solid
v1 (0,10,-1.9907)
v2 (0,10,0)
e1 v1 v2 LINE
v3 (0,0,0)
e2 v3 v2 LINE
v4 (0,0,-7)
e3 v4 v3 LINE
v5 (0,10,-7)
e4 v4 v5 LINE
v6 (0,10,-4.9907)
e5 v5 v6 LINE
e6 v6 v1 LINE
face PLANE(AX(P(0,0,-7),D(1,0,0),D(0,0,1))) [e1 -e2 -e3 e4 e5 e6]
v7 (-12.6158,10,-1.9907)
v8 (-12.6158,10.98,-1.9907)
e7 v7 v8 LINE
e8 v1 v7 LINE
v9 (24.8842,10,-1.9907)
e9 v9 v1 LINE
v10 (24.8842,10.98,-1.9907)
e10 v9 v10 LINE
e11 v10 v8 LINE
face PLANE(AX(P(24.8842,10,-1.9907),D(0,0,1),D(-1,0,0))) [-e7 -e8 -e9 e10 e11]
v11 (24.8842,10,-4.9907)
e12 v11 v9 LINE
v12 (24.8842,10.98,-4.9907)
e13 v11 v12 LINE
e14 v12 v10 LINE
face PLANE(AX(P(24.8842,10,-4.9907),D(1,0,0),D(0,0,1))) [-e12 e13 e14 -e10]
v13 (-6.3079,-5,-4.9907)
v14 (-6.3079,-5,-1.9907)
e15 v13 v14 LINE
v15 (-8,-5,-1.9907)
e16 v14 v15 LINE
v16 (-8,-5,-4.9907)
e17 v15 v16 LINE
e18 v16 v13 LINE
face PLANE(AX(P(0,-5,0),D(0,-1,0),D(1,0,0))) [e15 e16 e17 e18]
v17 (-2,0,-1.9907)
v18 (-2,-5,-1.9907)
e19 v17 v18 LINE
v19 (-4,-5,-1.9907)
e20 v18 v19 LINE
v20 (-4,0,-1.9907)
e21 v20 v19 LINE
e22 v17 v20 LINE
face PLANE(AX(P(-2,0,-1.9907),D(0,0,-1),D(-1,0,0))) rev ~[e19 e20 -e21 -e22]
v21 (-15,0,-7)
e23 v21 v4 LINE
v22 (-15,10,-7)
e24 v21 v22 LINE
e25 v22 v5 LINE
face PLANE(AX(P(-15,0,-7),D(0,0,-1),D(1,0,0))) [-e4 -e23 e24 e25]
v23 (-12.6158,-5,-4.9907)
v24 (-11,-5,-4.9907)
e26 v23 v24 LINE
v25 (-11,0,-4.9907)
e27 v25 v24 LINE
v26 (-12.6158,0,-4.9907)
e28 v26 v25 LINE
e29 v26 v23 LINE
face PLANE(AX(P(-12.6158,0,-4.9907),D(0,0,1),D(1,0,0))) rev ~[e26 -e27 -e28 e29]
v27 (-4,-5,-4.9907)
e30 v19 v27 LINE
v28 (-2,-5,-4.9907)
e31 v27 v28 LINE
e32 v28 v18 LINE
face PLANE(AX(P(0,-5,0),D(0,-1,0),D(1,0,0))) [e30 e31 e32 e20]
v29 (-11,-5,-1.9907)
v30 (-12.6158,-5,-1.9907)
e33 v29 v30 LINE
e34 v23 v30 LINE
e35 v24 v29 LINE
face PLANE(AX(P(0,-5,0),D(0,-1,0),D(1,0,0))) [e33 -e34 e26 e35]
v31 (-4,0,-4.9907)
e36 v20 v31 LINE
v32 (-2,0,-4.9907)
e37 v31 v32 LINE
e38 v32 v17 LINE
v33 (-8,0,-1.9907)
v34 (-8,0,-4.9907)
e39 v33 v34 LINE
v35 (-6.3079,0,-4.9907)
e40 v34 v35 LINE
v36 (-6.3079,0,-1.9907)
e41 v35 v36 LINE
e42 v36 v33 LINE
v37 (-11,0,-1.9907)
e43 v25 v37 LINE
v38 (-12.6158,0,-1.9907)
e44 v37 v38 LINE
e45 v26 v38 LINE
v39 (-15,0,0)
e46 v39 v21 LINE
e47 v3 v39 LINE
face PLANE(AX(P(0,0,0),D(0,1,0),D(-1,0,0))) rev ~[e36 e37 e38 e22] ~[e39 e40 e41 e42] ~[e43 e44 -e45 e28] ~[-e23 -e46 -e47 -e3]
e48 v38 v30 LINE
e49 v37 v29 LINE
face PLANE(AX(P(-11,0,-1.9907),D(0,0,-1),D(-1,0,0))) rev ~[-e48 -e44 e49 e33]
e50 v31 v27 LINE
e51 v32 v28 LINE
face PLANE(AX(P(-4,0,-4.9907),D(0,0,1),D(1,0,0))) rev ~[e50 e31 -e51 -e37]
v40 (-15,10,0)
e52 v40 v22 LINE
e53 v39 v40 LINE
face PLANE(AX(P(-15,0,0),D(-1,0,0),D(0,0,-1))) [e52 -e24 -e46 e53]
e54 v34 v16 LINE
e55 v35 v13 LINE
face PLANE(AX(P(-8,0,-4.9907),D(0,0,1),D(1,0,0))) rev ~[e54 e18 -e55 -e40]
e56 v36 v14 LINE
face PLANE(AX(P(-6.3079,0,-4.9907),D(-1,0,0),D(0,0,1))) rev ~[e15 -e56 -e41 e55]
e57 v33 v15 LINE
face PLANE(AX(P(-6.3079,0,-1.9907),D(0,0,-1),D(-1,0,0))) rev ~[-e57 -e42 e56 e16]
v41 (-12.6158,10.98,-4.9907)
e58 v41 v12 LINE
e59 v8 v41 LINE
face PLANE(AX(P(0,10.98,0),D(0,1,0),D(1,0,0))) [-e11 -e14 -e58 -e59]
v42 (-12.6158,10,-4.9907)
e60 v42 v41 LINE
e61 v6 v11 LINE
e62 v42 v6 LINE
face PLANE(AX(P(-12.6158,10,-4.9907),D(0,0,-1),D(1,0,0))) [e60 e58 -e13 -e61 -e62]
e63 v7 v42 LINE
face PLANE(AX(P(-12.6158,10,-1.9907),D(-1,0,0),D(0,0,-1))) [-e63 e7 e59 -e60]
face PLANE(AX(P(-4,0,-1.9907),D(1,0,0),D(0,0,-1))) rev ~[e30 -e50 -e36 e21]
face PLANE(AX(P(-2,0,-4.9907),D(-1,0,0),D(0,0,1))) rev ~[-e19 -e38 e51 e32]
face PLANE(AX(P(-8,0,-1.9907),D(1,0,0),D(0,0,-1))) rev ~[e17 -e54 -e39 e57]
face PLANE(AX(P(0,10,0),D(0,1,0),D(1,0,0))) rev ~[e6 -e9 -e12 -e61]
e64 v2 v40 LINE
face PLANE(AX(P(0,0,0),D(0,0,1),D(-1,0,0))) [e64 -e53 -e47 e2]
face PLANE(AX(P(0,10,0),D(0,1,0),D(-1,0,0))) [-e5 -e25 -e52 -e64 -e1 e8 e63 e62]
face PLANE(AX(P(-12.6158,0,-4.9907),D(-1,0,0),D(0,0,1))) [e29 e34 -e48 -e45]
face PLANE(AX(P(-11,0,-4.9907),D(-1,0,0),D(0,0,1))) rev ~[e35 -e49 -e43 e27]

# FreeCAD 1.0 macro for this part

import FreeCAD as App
import Part
import Sketcher


def add_polygon(sketch, points):
    """Adds a closed chain of lines whose ends are joined by coincident constraints."""
    first, n = sketch.GeometryCount, len(points)
    for a, b in zip(points, points[1:] + points[:1]):
        sketch.addGeometry(Part.LineSegment(App.Vector(*a, 0), App.Vector(*b, 0)), False)
    for i in range(n):
        sketch.addConstraint(Sketcher.Constraint("Coincident", first + i, 2, first + (i + 1) % n, 1))

doc = App.newDocument("Part")
body = doc.addObject("PartDesign::Body", "Body")

# Sketch on XZ plane
sketch1 = body.newObject("Sketcher::SketchObject", "Sketch")
sketch1.AttachmentSupport = (doc.getObject("XZ_Plane"), [""])
sketch1.MapMode = "FlatFace"
add_polygon(sketch1, [(-15, 0), (0, 0), (0, -7), (-15, -7)])  # lines 0-3
sketch1.addConstraint(Sketcher.Constraint("Horizontal", 0))
sketch1.addConstraint(Sketcher.Constraint("Vertical", 1))
sketch1.addConstraint(Sketcher.Constraint("Horizontal", 2))
sketch1.addConstraint(Sketcher.Constraint("Vertical", 3))
sketch1.addConstraint(Sketcher.Constraint("Coincident", 0, 2, -1, 1))
sketch1.addConstraint(Sketcher.Constraint("DistanceX", 0, 1, 0, 2, 15.0))
sketch1.addConstraint(Sketcher.Constraint("DistanceY", 1, 2, 1, 1, 7.0))
pad1 = body.newObject("PartDesign::Pad", "Pad")
pad1.Profile = sketch1
pad1.Length = 10
pad1.Reversed = True

# Sketch on XZ plane
sketch2 = body.newObject("Sketcher::SketchObject", "Sketch001")
sketch2.AttachmentSupport = (doc.getObject("XZ_Plane"), [""])
sketch2.MapMode = "FlatFace"
sketch2.AttachmentOffset = App.Placement(App.Vector(0, 0, -10), App.Rotation())
add_polygon(sketch2, [(24.9, -5), (-12.6, -5), (-12.6, -2), (24.9, -2)])  # lines 0-3
sketch2.addConstraint(Sketcher.Constraint("Horizontal", 0))
sketch2.addConstraint(Sketcher.Constraint("Vertical", 1))
sketch2.addConstraint(Sketcher.Constraint("Horizontal", 2))
sketch2.addConstraint(Sketcher.Constraint("Vertical", 3))
sketch2.addConstraint(Sketcher.Constraint("DistanceY", 1, 1, 1, 2, 3.0))
sketch2.addConstraint(Sketcher.Constraint("DistanceX", 0, 2, 0, 1, 37.5))
sketch2.addConstraint(Sketcher.Constraint("DistanceX", 0, 2, -1, 1, 12.6158))
sketch2.addConstraint(Sketcher.Constraint("DistanceY", 0, 2, -1, 1, 4.9907))
pad2 = body.newObject("PartDesign::Pad", "Pad001")
pad2.Profile = sketch2
pad2.Length = 0.98
pad2.Reversed = True

# Sketch on XZ plane
sketch3 = body.newObject("Sketcher::SketchObject", "Sketch002")
sketch3.AttachmentSupport = (doc.getObject("XZ_Plane"), [""])
sketch3.MapMode = "FlatFace"
add_polygon(sketch3, [(-2, -2), (-4, -2), (-4, -5), (-2, -5)])  # lines 0-3
add_polygon(sketch3, [(-6.3, -2), (-8, -2), (-8, -5), (-6.3, -5)])  # lines 4-7
add_polygon(sketch3, [(-12.6, -2), (-12.6, -5), (-11, -5), (-11, -2)])  # lines 8-11
sketch3.addConstraint(Sketcher.Constraint("Horizontal", 0))
sketch3.addConstraint(Sketcher.Constraint("Vertical", 1))
sketch3.addConstraint(Sketcher.Constraint("Horizontal", 2))
sketch3.addConstraint(Sketcher.Constraint("Vertical", 3))
sketch3.addConstraint(Sketcher.Constraint("Horizontal", 4))
sketch3.addConstraint(Sketcher.Constraint("Vertical", 5))
sketch3.addConstraint(Sketcher.Constraint("Horizontal", 6))
sketch3.addConstraint(Sketcher.Constraint("Vertical", 7))
sketch3.addConstraint(Sketcher.Constraint("Vertical", 8))
sketch3.addConstraint(Sketcher.Constraint("Horizontal", 9))
sketch3.addConstraint(Sketcher.Constraint("Vertical", 10))
sketch3.addConstraint(Sketcher.Constraint("Horizontal", 11))
sketch3.addConstraint(Sketcher.Constraint("Horizontal", 3, 2, 4, 2))
sketch3.addConstraint(Sketcher.Constraint("Horizontal", 2, 2, 5, 2))
sketch3.addConstraint(Sketcher.Constraint("Horizontal", 6, 2, 8, 2))
sketch3.addConstraint(Sketcher.Constraint("Horizontal", 7, 2, 10, 2))
sketch3.addConstraint(Sketcher.Constraint("DistanceX", 0, 2, 0, 1, 2.0))
sketch3.addConstraint(Sketcher.Constraint("DistanceY", 1, 2, 1, 1, 3.0))
sketch3.addConstraint(Sketcher.Constraint("DistanceX", 0, 2, -1, 1, 4.0))
sketch3.addConstraint(Sketcher.Constraint("DistanceX", 4, 2, -1, 1, 8.0))
sketch3.addConstraint(Sketcher.Constraint("DistanceX", 9, 2, -1, 1, 11.0))
sketch3.addConstraint(Sketcher.Constraint("DistanceX", 4, 2, 4, 1, 1.692))
sketch3.addConstraint(Sketcher.Constraint("DistanceX", 9, 1, 9, 2, 1.6158))
sketch3.addConstraint(Sketcher.Constraint("DistanceY", 0, 2, -1, 1, 1.9907))
pad3 = body.newObject("PartDesign::Pad", "Pad002")
pad3.Profile = sketch3
pad3.Length = 5

doc.recompute()
